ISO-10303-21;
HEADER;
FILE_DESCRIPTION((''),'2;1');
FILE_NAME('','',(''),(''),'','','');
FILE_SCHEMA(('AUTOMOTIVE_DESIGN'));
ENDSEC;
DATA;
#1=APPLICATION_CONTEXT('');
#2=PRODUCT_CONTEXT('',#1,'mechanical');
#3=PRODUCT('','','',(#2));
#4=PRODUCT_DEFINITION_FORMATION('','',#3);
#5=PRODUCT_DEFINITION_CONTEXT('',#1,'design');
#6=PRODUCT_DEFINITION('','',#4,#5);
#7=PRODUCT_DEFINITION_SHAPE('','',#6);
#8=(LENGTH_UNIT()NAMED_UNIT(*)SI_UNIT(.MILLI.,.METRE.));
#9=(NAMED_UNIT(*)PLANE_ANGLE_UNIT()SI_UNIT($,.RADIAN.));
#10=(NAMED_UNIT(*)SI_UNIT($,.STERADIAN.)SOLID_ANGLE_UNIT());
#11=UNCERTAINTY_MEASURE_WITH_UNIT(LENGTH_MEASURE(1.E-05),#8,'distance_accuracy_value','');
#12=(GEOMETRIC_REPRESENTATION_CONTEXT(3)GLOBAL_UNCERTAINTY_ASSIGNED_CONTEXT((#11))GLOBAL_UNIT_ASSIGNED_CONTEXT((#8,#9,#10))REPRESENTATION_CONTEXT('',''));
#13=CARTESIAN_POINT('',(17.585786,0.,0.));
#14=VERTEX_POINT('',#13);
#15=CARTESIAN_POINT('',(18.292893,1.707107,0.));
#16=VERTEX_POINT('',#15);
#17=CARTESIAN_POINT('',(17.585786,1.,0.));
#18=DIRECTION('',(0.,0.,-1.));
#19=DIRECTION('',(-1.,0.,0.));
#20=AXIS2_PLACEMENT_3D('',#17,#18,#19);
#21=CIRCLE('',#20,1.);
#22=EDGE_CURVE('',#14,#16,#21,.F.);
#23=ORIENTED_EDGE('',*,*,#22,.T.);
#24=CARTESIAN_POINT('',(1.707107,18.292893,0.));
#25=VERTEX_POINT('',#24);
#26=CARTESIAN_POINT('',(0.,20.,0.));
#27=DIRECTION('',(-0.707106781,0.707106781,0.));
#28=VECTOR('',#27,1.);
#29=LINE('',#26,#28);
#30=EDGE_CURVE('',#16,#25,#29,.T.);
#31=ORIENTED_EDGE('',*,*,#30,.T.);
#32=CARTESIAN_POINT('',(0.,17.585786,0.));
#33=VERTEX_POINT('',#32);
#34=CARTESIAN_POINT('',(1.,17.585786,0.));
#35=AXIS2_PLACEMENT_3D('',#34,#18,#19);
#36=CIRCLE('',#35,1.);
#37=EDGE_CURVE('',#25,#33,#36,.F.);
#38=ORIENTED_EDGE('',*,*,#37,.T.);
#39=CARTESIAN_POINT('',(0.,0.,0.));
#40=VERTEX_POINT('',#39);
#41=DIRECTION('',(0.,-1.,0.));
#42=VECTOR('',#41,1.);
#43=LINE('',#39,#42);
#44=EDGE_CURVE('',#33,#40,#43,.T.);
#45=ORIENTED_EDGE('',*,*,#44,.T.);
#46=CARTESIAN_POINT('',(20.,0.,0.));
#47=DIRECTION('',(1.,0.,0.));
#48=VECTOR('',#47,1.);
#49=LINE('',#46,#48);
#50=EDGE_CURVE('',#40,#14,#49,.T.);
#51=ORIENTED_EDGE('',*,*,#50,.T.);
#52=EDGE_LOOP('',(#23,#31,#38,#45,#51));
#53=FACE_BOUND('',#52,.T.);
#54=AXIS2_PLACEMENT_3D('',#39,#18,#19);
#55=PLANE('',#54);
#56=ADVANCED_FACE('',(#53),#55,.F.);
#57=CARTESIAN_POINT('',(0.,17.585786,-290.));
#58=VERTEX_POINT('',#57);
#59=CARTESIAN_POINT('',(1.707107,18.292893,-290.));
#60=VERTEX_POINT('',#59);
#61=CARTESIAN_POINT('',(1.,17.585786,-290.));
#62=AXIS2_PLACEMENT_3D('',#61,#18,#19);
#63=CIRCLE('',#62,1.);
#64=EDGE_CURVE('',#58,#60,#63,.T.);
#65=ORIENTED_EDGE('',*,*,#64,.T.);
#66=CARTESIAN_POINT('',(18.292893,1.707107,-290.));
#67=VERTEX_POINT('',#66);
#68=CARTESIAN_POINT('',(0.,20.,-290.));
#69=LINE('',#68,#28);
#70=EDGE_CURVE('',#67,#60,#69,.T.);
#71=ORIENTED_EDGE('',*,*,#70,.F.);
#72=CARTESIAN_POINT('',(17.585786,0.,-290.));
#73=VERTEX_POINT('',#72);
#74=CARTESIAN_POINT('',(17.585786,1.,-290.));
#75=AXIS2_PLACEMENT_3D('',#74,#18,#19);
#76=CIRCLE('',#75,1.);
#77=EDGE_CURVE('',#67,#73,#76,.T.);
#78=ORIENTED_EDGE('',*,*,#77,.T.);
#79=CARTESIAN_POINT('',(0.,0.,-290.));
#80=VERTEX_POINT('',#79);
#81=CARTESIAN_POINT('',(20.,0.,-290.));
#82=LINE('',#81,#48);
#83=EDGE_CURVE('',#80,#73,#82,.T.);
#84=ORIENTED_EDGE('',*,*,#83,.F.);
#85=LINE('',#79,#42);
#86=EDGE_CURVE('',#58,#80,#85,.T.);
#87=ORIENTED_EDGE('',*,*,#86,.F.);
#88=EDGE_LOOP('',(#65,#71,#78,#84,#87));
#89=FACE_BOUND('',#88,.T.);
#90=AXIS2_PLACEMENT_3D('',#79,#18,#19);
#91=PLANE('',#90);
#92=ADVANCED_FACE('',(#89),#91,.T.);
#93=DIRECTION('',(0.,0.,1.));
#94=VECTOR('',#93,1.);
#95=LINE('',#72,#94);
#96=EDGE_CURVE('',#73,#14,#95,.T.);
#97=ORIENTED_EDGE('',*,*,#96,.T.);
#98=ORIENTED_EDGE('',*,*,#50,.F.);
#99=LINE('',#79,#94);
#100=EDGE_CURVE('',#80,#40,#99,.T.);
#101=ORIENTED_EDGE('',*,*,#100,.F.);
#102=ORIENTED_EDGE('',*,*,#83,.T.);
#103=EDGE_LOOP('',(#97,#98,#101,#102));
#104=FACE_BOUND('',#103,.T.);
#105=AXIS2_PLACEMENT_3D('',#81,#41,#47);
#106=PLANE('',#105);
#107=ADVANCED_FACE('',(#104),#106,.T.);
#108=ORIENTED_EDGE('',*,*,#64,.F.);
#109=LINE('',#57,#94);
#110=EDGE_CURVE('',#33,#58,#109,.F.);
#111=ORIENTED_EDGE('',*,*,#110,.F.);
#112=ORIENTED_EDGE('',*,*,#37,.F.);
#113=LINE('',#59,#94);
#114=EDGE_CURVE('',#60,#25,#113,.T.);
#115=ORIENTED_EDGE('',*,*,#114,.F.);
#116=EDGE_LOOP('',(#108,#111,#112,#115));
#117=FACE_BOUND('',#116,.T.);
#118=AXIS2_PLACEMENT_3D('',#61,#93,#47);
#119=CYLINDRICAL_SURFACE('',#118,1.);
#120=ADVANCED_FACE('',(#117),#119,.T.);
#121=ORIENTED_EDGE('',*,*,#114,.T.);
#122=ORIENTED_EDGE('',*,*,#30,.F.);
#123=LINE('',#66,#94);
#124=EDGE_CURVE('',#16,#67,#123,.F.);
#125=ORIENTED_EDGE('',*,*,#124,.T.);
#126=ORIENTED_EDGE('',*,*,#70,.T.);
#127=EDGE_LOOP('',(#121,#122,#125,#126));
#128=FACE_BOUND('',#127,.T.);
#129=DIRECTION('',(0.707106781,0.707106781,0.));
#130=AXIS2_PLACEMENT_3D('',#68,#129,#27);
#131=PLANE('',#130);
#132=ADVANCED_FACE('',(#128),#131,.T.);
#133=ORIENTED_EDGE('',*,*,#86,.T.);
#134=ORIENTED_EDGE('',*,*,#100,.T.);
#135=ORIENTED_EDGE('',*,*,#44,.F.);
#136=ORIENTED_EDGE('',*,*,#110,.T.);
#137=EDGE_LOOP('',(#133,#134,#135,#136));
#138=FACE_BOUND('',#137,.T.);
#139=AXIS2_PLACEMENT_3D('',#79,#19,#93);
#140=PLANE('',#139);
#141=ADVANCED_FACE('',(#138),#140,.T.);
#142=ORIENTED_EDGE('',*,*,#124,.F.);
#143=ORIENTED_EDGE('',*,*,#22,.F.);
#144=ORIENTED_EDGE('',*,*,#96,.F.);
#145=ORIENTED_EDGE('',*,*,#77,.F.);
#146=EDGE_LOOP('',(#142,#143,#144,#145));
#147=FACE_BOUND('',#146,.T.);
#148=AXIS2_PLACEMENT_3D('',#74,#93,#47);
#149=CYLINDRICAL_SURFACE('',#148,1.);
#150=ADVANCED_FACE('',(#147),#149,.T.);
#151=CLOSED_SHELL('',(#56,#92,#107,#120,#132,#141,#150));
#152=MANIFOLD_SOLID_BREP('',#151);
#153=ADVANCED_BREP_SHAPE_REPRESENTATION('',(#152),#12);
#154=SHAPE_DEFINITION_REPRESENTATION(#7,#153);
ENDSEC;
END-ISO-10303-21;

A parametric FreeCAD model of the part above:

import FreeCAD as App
import Part
import Sketcher

V = App.Vector
Q = App.Units.Quantity


def edges_at(feature, points):
    """Names of the edges that pass closest to the given points."""
    edges = feature.Shape.Edges
    near = lambda p: min(range(len(edges)), key=lambda i: edges[i].distToShape(Part.Vertex(*p))[0])
    return sorted({f"Edge{near(p) + 1}" for p in points})


def add_polygon(sketch, points):
    """Adds a closed chain of lines whose ends are joined by coincident constraints."""
    first, n = sketch.GeometryCount, len(points)
    for a, b in zip(points, points[1:] + points[:1]):
        sketch.addGeometry(Part.LineSegment(App.Vector(*a, 0), App.Vector(*b, 0)), False)
    for i in range(n):
        sketch.addConstraint(Sketcher.Constraint("Coincident", first + i, 2, first + (i + 1) % n, 1))

doc = App.newDocument("Part")
body = doc.addObject("PartDesign::Body", "Body")

sketch1 = doc.addObject("Sketcher::SketchObject", "Sketch")
body.addObject(sketch1)
sketch1.AttachmentSupport = (doc.XY_Plane, [""])
sketch1.MapMode = "FlatFace"
add_polygon(sketch1, [(0, 20), (0, 0), (20, 0)])
sketch1.addConstraint([
    Sketcher.Constraint("Vertical", 0),
    Sketcher.Constraint("Horizontal", 1),
    Sketcher.Constraint("Coincident", 0, 2, -1, 1),
    Sketcher.Constraint("Equal", 1, 0),
    Sketcher.Constraint("DistanceX", 1, 1, 1, 2, Q("20 mm")),
])
pad1 = doc.addObject("PartDesign::Pad", "Pad")
body.addObject(pad1)
pad1.Profile = sketch1
pad1.Length = 290
pad1.Reversed = True
doc.recompute()

fillet = doc.addObject("PartDesign::Fillet", "Fillet")
body.addObject(fillet)
fillet.Base = (pad1, edges_at(pad1, [(0, 20, -145), (20, 0, -145)]))
fillet.Radius = 1

doc.recompute()
